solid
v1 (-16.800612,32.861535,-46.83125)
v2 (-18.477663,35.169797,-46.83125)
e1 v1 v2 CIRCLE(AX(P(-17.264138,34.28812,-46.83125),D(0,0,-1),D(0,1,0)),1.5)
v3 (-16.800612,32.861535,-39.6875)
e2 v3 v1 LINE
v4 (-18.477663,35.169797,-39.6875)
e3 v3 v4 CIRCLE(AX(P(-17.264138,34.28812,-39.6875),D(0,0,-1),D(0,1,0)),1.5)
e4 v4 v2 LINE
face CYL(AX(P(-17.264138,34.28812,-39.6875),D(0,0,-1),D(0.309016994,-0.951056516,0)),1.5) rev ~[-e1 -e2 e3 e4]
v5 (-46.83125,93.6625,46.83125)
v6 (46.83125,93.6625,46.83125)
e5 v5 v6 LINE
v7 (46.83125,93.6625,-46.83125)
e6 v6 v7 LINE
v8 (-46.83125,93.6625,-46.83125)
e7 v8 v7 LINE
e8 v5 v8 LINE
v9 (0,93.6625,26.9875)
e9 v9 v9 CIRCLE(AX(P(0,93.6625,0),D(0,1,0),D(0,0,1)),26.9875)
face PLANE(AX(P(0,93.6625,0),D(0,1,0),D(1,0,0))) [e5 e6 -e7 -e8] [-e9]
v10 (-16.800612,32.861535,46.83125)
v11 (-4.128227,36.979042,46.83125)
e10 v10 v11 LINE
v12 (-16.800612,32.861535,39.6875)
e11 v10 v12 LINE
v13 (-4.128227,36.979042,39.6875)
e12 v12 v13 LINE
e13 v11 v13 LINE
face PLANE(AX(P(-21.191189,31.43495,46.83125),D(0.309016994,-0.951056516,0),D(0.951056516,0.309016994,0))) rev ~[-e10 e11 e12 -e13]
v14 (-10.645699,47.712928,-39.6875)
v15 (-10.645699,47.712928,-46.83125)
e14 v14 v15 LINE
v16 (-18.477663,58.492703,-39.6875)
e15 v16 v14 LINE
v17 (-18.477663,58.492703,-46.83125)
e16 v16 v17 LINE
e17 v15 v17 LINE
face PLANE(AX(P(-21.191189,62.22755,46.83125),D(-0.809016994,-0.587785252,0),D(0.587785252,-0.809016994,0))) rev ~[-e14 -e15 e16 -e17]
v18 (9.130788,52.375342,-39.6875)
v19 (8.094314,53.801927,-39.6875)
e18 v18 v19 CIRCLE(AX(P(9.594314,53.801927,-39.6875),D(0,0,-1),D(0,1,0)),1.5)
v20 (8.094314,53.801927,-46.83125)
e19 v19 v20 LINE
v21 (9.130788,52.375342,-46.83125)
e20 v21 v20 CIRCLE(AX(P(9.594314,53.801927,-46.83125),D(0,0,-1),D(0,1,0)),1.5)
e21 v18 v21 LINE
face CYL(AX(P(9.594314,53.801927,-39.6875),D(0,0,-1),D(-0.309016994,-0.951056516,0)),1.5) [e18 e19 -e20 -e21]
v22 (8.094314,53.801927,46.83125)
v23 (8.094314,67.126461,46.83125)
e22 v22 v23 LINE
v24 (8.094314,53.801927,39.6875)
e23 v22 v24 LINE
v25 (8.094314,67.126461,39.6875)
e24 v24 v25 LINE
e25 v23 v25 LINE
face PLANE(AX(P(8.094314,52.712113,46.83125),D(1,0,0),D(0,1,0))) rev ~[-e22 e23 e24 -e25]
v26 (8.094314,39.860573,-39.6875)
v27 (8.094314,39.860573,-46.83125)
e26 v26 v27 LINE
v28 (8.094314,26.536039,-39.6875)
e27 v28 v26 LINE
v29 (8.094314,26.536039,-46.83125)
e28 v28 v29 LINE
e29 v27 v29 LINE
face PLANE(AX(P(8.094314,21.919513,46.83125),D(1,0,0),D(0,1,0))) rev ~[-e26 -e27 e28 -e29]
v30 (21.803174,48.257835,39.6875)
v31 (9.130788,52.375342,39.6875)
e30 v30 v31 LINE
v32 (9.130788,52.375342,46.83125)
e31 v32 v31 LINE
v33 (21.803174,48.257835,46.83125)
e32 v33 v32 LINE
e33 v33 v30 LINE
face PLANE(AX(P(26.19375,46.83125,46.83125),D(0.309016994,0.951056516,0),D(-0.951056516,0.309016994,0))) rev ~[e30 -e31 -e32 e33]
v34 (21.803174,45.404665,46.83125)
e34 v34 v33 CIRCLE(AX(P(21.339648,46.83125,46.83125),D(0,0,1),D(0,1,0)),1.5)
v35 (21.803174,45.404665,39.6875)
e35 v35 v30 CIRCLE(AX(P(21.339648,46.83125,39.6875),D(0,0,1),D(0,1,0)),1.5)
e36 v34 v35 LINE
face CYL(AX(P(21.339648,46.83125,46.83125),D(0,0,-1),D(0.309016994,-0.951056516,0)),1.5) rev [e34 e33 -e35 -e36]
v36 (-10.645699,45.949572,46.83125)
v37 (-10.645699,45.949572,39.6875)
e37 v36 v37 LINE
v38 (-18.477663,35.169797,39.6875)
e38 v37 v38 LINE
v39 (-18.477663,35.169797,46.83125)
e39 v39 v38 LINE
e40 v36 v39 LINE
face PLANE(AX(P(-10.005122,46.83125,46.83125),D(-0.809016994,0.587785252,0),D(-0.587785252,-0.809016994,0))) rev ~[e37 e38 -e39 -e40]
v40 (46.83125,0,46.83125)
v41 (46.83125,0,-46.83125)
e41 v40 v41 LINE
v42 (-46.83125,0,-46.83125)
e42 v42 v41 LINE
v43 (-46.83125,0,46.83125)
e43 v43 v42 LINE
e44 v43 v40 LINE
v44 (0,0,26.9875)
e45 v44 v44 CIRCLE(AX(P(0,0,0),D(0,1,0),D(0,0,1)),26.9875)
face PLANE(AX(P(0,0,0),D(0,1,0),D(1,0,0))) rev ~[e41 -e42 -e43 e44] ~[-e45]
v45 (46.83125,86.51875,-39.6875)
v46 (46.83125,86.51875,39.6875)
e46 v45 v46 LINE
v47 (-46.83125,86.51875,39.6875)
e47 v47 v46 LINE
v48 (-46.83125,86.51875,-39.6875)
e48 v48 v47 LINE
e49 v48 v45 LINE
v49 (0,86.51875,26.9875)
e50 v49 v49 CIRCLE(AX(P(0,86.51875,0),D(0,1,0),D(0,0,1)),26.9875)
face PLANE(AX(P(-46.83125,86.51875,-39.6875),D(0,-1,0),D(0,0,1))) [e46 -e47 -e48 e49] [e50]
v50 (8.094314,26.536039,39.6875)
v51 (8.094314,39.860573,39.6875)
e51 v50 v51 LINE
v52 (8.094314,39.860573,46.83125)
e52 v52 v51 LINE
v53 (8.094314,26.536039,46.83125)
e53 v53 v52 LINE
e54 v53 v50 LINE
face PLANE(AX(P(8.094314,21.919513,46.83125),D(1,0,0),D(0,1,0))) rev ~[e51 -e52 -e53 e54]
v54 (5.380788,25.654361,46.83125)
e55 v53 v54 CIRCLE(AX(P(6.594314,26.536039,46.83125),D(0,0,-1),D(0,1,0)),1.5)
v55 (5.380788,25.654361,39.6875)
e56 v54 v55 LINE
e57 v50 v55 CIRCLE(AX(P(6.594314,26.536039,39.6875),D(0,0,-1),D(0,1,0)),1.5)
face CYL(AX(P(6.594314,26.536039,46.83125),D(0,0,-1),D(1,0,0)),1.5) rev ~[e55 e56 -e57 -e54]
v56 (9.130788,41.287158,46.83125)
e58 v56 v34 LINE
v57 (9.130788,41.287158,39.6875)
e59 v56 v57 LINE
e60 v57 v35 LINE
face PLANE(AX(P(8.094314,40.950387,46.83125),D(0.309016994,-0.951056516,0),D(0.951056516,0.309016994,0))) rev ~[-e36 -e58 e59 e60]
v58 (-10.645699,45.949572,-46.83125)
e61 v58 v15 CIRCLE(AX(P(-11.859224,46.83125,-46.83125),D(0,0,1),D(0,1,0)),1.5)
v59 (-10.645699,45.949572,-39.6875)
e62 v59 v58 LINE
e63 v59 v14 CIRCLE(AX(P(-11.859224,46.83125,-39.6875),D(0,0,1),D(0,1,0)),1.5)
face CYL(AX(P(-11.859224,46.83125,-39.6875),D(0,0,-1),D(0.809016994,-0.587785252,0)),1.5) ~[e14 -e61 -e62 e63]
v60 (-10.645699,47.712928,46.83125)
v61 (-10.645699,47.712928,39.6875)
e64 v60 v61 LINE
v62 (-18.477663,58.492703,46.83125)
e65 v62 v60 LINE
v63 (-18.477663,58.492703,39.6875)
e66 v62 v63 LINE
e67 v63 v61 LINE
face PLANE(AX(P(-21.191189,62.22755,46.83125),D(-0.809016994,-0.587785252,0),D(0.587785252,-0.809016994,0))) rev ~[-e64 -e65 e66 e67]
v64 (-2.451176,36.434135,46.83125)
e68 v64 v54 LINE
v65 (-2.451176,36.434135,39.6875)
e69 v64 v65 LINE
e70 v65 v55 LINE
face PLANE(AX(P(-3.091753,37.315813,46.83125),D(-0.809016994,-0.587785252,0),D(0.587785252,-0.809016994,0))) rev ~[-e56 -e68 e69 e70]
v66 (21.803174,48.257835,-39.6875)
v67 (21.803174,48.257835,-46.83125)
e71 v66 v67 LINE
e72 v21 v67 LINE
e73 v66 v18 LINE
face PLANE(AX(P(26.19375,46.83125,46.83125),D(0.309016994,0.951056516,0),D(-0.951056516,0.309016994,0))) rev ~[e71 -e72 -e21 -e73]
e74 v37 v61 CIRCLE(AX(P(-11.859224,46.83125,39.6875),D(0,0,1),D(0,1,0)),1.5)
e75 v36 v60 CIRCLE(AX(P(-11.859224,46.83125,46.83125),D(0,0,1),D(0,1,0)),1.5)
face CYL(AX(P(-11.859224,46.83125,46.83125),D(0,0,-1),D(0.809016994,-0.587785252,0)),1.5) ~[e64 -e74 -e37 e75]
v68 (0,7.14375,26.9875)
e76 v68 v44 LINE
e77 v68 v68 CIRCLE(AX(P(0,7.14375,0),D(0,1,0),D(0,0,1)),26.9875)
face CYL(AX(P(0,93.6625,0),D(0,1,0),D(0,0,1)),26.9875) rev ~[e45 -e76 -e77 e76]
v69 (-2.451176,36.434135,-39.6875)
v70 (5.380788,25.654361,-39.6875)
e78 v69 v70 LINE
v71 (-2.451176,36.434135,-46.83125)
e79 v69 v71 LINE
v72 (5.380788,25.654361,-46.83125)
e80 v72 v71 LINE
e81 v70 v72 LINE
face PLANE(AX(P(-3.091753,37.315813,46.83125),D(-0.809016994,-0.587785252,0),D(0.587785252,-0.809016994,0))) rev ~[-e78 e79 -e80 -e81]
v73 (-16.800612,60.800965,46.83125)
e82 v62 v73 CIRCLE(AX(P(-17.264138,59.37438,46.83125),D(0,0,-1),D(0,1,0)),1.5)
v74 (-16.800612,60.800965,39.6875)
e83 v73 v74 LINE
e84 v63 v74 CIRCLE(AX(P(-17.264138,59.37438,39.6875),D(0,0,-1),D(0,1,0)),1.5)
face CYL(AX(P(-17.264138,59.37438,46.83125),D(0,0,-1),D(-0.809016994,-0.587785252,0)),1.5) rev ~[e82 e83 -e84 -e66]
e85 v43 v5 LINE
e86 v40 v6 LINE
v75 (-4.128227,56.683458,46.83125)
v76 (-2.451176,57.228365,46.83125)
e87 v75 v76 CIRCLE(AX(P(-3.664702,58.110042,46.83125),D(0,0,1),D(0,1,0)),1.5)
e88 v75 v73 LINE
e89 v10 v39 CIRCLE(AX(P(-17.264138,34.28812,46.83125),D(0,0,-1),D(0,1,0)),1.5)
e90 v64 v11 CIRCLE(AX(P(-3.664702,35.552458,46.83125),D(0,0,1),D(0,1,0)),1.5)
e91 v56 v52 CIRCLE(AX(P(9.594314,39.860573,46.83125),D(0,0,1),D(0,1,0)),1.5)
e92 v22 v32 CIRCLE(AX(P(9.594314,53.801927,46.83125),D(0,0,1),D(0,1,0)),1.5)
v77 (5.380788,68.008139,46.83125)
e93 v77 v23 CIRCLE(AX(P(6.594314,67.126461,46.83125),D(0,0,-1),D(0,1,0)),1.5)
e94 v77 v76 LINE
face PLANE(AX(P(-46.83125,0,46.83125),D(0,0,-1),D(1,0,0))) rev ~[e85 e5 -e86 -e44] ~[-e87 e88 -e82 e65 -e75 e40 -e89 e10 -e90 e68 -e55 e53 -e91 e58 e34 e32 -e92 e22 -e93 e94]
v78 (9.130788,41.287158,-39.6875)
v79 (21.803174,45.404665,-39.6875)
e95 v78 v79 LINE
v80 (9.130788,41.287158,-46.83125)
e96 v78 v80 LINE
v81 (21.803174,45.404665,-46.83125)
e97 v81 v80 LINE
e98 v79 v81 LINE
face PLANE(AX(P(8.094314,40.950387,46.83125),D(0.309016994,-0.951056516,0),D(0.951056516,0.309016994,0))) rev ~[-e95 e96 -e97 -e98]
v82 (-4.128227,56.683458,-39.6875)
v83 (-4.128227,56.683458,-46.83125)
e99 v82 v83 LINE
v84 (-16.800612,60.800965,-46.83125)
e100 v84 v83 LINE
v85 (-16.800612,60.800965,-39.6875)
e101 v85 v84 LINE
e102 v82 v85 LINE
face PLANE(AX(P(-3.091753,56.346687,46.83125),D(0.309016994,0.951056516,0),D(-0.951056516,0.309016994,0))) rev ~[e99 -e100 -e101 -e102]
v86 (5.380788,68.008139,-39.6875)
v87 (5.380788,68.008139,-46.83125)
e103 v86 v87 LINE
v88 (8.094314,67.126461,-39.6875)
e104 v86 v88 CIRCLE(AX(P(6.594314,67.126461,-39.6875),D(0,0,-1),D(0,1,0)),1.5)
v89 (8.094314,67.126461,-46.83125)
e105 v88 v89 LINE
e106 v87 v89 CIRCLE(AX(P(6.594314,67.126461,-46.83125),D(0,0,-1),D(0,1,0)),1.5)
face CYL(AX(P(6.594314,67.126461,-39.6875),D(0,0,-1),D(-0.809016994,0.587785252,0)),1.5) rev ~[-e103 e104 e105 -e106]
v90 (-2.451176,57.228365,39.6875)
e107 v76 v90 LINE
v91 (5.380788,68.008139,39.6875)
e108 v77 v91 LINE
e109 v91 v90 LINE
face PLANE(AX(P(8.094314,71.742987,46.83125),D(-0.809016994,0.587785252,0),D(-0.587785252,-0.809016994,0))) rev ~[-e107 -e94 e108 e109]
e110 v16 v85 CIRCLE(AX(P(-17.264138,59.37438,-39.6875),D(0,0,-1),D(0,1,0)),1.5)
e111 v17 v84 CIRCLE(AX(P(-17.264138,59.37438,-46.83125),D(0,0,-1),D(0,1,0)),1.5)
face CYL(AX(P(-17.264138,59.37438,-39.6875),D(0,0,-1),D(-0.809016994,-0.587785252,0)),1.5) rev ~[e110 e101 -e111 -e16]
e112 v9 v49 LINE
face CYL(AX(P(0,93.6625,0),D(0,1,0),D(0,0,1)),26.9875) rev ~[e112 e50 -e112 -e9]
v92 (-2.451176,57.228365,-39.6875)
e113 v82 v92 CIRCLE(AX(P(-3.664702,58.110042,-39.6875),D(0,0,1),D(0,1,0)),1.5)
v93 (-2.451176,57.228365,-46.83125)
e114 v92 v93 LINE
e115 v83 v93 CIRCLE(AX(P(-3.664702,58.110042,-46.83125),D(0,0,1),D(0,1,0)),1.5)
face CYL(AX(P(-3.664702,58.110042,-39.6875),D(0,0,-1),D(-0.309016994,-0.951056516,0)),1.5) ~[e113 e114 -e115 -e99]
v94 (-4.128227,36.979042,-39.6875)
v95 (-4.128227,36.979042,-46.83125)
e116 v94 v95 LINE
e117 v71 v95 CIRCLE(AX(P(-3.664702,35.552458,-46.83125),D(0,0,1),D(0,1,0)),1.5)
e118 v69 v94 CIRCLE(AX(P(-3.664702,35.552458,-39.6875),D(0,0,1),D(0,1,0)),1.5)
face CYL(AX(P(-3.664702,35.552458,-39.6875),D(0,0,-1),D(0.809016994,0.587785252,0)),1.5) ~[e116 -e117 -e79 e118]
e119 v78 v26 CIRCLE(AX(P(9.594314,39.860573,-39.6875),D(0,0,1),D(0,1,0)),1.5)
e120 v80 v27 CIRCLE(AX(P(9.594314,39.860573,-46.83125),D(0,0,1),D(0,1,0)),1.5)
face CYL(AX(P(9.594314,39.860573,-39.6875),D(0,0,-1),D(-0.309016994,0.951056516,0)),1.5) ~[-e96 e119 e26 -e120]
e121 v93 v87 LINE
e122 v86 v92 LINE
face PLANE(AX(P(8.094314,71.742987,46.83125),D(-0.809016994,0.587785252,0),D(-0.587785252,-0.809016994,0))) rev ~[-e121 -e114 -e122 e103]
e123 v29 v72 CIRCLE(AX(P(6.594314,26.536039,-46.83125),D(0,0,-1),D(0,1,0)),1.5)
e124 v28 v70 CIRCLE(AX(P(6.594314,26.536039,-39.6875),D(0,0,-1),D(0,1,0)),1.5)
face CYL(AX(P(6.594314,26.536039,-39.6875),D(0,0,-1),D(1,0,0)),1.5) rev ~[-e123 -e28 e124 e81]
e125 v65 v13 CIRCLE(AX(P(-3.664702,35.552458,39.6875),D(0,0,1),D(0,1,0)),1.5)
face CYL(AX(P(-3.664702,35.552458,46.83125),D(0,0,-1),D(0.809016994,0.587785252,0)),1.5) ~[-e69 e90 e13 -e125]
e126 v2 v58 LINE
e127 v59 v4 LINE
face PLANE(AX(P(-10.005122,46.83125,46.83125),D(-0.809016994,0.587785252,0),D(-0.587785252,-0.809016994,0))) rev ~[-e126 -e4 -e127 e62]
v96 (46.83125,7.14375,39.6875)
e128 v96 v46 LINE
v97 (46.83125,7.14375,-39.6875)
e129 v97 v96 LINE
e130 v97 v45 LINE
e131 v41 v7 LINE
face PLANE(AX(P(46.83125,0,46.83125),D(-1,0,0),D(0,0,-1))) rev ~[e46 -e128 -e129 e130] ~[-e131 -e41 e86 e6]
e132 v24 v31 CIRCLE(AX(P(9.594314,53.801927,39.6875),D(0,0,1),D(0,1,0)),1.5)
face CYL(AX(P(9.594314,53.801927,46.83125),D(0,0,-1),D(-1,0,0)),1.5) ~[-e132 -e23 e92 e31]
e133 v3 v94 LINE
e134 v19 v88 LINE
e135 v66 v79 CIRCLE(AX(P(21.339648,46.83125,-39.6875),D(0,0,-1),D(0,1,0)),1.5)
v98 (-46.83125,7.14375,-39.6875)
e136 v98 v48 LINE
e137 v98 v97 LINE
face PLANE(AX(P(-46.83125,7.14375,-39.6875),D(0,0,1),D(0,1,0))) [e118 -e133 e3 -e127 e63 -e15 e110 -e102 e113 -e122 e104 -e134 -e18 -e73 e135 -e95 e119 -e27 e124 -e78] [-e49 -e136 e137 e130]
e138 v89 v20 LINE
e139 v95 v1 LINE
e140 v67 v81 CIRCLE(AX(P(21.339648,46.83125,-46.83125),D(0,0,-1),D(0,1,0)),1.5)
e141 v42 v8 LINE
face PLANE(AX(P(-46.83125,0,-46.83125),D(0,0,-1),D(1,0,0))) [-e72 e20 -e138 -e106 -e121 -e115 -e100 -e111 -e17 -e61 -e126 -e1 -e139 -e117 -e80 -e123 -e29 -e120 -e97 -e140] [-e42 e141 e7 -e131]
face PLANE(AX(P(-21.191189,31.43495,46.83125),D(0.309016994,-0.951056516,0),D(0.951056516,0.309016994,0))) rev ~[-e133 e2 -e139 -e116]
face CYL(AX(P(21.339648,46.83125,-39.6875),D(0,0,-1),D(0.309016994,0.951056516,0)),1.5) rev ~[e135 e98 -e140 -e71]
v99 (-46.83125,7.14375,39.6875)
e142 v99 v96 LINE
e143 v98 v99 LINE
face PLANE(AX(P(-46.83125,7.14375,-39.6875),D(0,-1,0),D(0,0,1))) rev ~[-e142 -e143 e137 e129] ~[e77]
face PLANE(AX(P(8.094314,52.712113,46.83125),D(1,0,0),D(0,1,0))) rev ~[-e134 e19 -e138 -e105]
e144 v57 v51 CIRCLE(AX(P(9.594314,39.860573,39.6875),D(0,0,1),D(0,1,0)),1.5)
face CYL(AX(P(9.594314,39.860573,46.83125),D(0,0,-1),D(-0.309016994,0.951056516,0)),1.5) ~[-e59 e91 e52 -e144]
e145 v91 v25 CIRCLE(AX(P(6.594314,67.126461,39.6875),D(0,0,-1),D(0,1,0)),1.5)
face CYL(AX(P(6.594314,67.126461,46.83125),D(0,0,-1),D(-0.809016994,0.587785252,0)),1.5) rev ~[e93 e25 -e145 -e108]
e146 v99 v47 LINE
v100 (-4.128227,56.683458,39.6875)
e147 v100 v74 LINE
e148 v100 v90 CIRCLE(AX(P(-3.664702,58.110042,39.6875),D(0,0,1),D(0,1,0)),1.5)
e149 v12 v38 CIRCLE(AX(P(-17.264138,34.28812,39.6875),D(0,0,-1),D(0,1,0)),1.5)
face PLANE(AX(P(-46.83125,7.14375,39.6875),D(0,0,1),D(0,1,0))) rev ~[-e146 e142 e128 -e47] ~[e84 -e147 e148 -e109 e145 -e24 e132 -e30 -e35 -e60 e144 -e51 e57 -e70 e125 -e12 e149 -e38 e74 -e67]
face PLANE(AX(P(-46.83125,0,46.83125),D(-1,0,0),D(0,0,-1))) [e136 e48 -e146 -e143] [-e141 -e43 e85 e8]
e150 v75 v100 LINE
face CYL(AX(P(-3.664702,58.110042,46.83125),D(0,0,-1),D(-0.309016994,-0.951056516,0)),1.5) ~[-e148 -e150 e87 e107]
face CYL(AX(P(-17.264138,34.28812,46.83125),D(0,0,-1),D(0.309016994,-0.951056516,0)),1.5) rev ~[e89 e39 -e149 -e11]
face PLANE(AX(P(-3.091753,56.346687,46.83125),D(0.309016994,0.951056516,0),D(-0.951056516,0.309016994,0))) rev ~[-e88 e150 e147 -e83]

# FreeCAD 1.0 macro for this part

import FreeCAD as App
import Part
import Sketcher
Q = App.Units.Quantity


def edges_at(feature, points):
    """Names of the edges that pass closest to the given points."""
    edges = feature.Shape.Edges
    near = lambda p: min(range(len(edges)), key=lambda i: edges[i].distToShape(Part.Vertex(*p))[0])
    return sorted({f"Edge{near(p) + 1}" for p in points})

doc = App.newDocument("Part")
body = doc.addObject("PartDesign::Body", "Body")

# Sketch on XZ plane
sketch1 = body.newObject("Sketcher::SketchObject", "Sketch")
sketch1.AttachmentSupport = (doc.getObject("XZ_Plane"), [""])
sketch1.MapMode = "FlatFace"
sketch1.addGeometry(Part.LineSegment(App.Vector(-47, -47, 0), App.Vector(-47, 47, 0)), False)
sketch1.addGeometry(Part.LineSegment(App.Vector(-47, 47, 0), App.Vector(47, 47, 0)), False)
sketch1.addGeometry(Part.LineSegment(App.Vector(47, 47, 0), App.Vector(47, -47, 0)), False)
sketch1.addGeometry(Part.LineSegment(App.Vector(47, -47, 0), App.Vector(-47, -47, 0)), False)
sketch1.addConstraint(Sketcher.Constraint("Coincident", 0, 2, 1, 1))
sketch1.addConstraint(Sketcher.Constraint("Coincident", 1, 2, 2, 1))
sketch1.addConstraint(Sketcher.Constraint("Coincident", 2, 2, 3, 1))
sketch1.addConstraint(Sketcher.Constraint("Coincident", 3, 2, 0, 1))
sketch1.addConstraint(Sketcher.Constraint("Vertical", 0))
sketch1.addConstraint(Sketcher.Constraint("Horizontal", 1))
sketch1.addConstraint(Sketcher.Constraint("Vertical", 2))
sketch1.addConstraint(Sketcher.Constraint("Horizontal", 3))
sketch1.addConstraint(Sketcher.Constraint("Symmetric", 0, 2, 2, 2, -1, 1))
sketch1.addConstraint(Sketcher.Constraint("Equal", 3, 0))
sketch1.addConstraint(Sketcher.Constraint("DistanceX", 1, 1, 1, 2, Q("3.6875 in")))
pad1 = body.newObject("PartDesign::Pad", "Pad")
pad1.Profile = sketch1
pad1.Length = Q("3.6875 in")
pad1.Reversed = True

# Sketch on XZ plane
sketch2 = body.newObject("Sketcher::SketchObject", "Sketch001")
sketch2.AttachmentSupport = (doc.getObject("XZ_Plane"), [""])
sketch2.MapMode = "FlatFace"
sketch2.AttachmentOffset = App.Placement(App.Vector(0, 0, -3.6875 * 25.4), App.Rotation())
sketch2.addGeometry(Part.Circle(App.Vector(0, 0, 0), App.Vector(0, 0, 1), 27), False)
sketch2.addConstraint(Sketcher.Constraint("Coincident", 0, 3, -1, 1))
sketch2.addConstraint(Sketcher.Constraint("Diameter", 0, Q("2.125 in")))
pocket1 = body.newObject("PartDesign::Pocket", "Pocket")
pocket1.Profile = sketch2
pocket1.Type = "ThroughAll"
pocket1.Reversed = True

# Sketch on YZ plane
sketch3 = body.newObject("Sketcher::SketchObject", "Sketch002")
sketch3.AttachmentSupport = (doc.getObject("YZ_Plane"), [""])
sketch3.MapMode = "FlatFace"
sketch3.AttachmentOffset = App.Placement(App.Vector(0, 0, -1.84375 * 25.4), App.Rotation())
sketch3.addGeometry(Part.LineSegment(App.Vector(87, -40, 0), App.Vector(7, -40, 0)), False)
sketch3.addGeometry(Part.LineSegment(App.Vector(7, -40, 0), App.Vector(7, 40, 0)), False)
sketch3.addGeometry(Part.LineSegment(App.Vector(7, 40, 0), App.Vector(87, 40, 0)), False)
sketch3.addGeometry(Part.LineSegment(App.Vector(87, 40, 0), App.Vector(87, -40, 0)), False)
sketch3.addConstraint(Sketcher.Constraint("Coincident", 0, 2, 1, 1))
sketch3.addConstraint(Sketcher.Constraint("Coincident", 1, 2, 2, 1))
sketch3.addConstraint(Sketcher.Constraint("Coincident", 2, 2, 3, 1))
sketch3.addConstraint(Sketcher.Constraint("Coincident", 3, 2, 0, 1))
sketch3.addConstraint(Sketcher.Constraint("Horizontal", 0))
sketch3.addConstraint(Sketcher.Constraint("Vertical", 1))
sketch3.addConstraint(Sketcher.Constraint("Horizontal", 2))
sketch3.addConstraint(Sketcher.Constraint("Vertical", 3))
sketch3.addConstraint(Sketcher.Constraint("Equal", 2, 1))
sketch3.addConstraint(Sketcher.Constraint("DistanceX", 0, 2, 0, 1, Q("3.125 in")))
sketch3.addConstraint(Sketcher.Constraint("DistanceX", -1, 1, 0, 2, Q("0.28125 in")))
sketch3.addConstraint(Sketcher.Constraint("DistanceY", 0, 2, -1, 1, Q("1.5625 in")))
pocket2 = body.newObject("PartDesign::Pocket", "Pocket001")
pocket2.Profile = sketch3
pocket2.Type = "ThroughAll"
pocket2.Reversed = True

# Sketch on XY plane
sketch4 = body.newObject("Sketcher::SketchObject", "Sketch003")
sketch4.AttachmentSupport = (doc.getObject("XY_Plane"), [""])
sketch4.MapMode = "FlatFace"
sketch4.AttachmentOffset = App.Placement(App.Vector(0, 0, 1.84375 * 25.4), App.Rotation())
sketch4.addGeometry(Part.LineSegment(App.Vector(26, 47, 0), App.Vector(8, 53, 0)), False)
sketch4.addGeometry(Part.LineSegment(App.Vector(8, 53, 0), App.Vector(8, 72, 0)), False)
sketch4.addGeometry(Part.LineSegment(App.Vector(8, 72, 0), App.Vector(-3, 56, 0)), False)
sketch4.addGeometry(Part.LineSegment(App.Vector(-3, 56, 0), App.Vector(-21, 62, 0)), False)
sketch4.addGeometry(Part.LineSegment(App.Vector(-21, 62, 0), App.Vector(-10, 47, 0)), False)
sketch4.addGeometry(Part.LineSegment(App.Vector(-10, 47, 0), App.Vector(-21, 31, 0)), False)
sketch4.addGeometry(Part.LineSegment(App.Vector(-21, 31, 0), App.Vector(-3, 37, 0)), False)
sketch4.addGeometry(Part.LineSegment(App.Vector(-3, 37, 0), App.Vector(8, 22, 0)), False)
sketch4.addGeometry(Part.LineSegment(App.Vector(8, 22, 0), App.Vector(8, 41, 0)), False)
sketch4.addGeometry(Part.LineSegment(App.Vector(8, 41, 0), App.Vector(26, 47, 0)), False)
sketch4.addConstraint(Sketcher.Constraint("Coincident", 0, 2, 1, 1))
sketch4.addConstraint(Sketcher.Constraint("Coincident", 1, 2, 2, 1))
sketch4.addConstraint(Sketcher.Constraint("Coincident", 2, 2, 3, 1))
sketch4.addConstraint(Sketcher.Constraint("Coincident", 3, 2, 4, 1))
sketch4.addConstraint(Sketcher.Constraint("Coincident", 4, 2, 5, 1))
sketch4.addConstraint(Sketcher.Constraint("Coincident", 5, 2, 6, 1))
sketch4.addConstraint(Sketcher.Constraint("Coincident", 6, 2, 7, 1))
sketch4.addConstraint(Sketcher.Constraint("Coincident", 7, 2, 8, 1))
sketch4.addConstraint(Sketcher.Constraint("Coincident", 8, 2, 9, 1))
sketch4.addConstraint(Sketcher.Constraint("Coincident", 9, 2, 0, 1))
sketch4.addConstraint(Sketcher.Constraint("Vertical", 1))
sketch4.addConstraint(Sketcher.Constraint("Vertical", 8))
sketch4.addConstraint(Sketcher.Constraint("Parallel", 0, 3))
sketch4.addConstraint(Sketcher.Constraint("Parallel", 2, 5))
sketch4.addConstraint(Sketcher.Constraint("Parallel", 4, 7))
sketch4.addConstraint(Sketcher.Constraint("Parallel", 6, 9))
sketch4.addConstraint(Sketcher.Constraint("Horizontal", 4, 2, 9, 2))
sketch4.addConstraint(Sketcher.Constraint("Vertical", 3, 2, 5, 2))
sketch4.addConstraint(Sketcher.Constraint("Vertical", 2, 2, 6, 2))
sketch4.addConstraint(Sketcher.Constraint("Vertical", 1, 2, 7, 2))
sketch4.addConstraint(Sketcher.Constraint("Equal", 1, 8))
sketch4.addConstraint(Sketcher.Constraint("Equal", 0, 2))
sketch4.addConstraint(Sketcher.Constraint("Equal", 2, 3))
sketch4.addConstraint(Sketcher.Constraint("Equal", 3, 4))
sketch4.addConstraint(Sketcher.Constraint("Equal", 4, 5))
sketch4.addConstraint(Sketcher.Constraint("Angle", 0, Q("162 deg")))
sketch4.addConstraint(Sketcher.Constraint("Angle", 2, Q("-126 deg")))
sketch4.addConstraint(Sketcher.Constraint("DistanceY", -1, 1, 4, 2, Q("1.84375 in")))
sketch4.addConstraint(Sketcher.Constraint("DistanceX", -1, 1, 9, 2, Q("1.03125 in")))
sketch4.addConstraint(Sketcher.Constraint("DistanceY", 2, 2, 1, 2, 15.3963))
pocket3 = body.newObject("PartDesign::Pocket", "Pocket002")
pocket3.Profile = sketch4
pocket3.Type = "ThroughAll"
doc.recompute()

fillet = body.newObject("PartDesign::Fillet", "Fillet")
fillet.Base = (pocket3, edges_at(pocket3, [
    (26.194, 46.831, 43.259),
    (8.094, 40.95, 43.259),
    (8.094, 21.92, 43.259),
    (-3.092, 37.316, 43.259),
    (-21.191, 31.435, 43.259),
    (-10.005, 46.831, 43.259),
    (-21.191, 62.228, 43.259),
    (-3.092, 56.347, 43.259),
    (8.094, 71.743, 43.259),
    (8.094, 52.712, 43.259),
]))
fillet.Radius = 1.5
doc.recompute()

fillet2 = body.newObject("PartDesign::Fillet", "Fillet001")
fillet2.Base = (fillet, edges_at(fillet, [
    (26.194, 46.831, -43.259),
    (8.094, 40.95, -43.259),
    (8.094, 21.92, -43.259),
    (-3.092, 37.316, -43.259),
    (-21.191, 31.435, -43.259),
    (-10.005, 46.831, -43.259),
    (-21.191, 62.228, -43.259),
    (-3.092, 56.347, -43.259),
    (8.094, 71.743, -43.259),
    (8.094, 52.712, -43.259),
]))
fillet2.Radius = 1.5

doc.recompute()
